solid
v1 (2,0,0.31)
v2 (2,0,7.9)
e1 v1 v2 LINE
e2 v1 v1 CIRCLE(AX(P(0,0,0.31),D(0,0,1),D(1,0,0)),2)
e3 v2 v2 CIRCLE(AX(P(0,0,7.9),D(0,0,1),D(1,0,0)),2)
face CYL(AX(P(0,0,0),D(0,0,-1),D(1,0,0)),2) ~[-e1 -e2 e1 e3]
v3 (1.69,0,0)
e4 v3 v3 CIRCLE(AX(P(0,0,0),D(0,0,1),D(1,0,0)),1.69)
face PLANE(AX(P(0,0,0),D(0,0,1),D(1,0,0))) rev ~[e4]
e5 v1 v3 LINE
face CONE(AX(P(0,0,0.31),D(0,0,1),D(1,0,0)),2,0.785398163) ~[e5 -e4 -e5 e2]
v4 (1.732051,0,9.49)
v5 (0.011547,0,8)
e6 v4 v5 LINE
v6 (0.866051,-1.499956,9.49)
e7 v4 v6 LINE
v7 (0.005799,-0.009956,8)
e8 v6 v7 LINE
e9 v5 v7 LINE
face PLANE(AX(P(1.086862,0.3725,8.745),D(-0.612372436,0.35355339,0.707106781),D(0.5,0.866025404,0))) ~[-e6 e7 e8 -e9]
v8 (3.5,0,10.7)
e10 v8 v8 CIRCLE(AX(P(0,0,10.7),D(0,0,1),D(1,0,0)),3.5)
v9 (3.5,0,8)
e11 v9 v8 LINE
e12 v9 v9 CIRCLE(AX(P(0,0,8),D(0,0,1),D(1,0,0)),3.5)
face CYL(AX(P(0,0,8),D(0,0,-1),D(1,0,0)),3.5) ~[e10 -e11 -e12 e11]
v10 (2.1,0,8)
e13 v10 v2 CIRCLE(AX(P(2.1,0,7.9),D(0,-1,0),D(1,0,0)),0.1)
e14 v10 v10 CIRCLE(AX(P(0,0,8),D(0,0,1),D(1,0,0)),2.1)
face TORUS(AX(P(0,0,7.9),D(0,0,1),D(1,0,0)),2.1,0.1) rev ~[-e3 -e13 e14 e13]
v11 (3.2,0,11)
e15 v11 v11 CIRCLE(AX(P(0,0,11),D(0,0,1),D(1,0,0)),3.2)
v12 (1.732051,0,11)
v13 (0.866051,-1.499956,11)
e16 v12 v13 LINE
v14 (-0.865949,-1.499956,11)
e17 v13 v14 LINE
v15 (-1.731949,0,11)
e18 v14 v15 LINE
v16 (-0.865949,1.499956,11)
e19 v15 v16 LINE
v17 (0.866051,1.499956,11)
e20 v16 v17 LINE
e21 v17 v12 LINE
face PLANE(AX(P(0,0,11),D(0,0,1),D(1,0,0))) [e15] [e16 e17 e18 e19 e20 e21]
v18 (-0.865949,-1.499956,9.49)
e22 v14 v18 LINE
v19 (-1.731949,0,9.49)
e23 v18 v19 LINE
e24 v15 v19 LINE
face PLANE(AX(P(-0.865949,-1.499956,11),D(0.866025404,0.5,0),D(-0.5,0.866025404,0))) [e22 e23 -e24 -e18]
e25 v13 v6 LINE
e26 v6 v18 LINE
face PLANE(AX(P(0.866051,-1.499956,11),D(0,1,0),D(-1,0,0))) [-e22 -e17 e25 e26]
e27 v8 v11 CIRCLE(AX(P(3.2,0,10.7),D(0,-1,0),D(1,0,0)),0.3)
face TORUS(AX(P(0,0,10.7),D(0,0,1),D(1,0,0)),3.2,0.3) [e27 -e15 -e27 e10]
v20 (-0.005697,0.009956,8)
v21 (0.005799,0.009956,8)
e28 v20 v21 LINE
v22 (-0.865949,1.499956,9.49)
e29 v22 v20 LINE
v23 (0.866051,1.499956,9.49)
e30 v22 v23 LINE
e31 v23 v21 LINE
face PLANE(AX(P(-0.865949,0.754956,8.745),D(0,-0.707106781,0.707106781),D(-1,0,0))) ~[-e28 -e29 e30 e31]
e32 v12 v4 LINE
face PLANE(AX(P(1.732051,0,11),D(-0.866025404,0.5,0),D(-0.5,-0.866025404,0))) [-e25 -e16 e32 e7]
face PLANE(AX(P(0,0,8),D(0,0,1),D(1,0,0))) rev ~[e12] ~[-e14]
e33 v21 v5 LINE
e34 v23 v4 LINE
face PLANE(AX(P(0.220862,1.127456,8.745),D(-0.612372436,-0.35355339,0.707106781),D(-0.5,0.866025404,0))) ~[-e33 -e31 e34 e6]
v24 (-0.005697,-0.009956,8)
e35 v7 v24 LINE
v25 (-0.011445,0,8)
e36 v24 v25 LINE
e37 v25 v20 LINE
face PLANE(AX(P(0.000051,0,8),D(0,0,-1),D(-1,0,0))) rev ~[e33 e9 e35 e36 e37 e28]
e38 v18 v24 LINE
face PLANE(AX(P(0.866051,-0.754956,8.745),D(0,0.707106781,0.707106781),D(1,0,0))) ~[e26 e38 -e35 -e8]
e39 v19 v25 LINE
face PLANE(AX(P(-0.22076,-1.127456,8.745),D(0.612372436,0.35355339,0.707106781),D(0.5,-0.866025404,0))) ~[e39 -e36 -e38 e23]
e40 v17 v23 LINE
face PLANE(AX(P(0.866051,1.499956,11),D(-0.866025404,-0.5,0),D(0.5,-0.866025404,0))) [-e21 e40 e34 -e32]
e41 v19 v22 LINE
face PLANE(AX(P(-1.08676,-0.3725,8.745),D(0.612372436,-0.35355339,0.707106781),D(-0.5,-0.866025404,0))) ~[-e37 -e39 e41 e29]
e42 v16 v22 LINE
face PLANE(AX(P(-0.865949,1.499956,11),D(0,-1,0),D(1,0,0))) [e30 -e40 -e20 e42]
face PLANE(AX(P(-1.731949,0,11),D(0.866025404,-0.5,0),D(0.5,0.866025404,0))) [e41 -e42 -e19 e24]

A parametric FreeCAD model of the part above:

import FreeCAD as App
import Part
import Sketcher
Q = App.Units.Quantity


def edges_at(feature, points):
    """Names of the edges that pass closest to the given points."""
    edges = feature.Shape.Edges
    near = lambda p: min(range(len(edges)), key=lambda i: edges[i].distToShape(Part.Vertex(*p))[0])
    return sorted({f"Edge{near(p) + 1}" for p in points})


def add_polygon(sketch, points):
    """Adds a closed chain of lines whose ends are joined by coincident constraints."""
    first, n = sketch.GeometryCount, len(points)
    for a, b in zip(points, points[1:] + points[:1]):
        sketch.addGeometry(Part.LineSegment(App.Vector(*a, 0), App.Vector(*b, 0)), False)
    for i in range(n):
        sketch.addConstraint(Sketcher.Constraint("Coincident", first + i, 2, first + (i + 1) % n, 1))

doc = App.newDocument("Part")
body = doc.addObject("PartDesign::Body", "Body")

sketch1 = doc.addObject("Sketcher::SketchObject", "Sketch")
body.addObject(sketch1)
sketch1.AttachmentSupport = (doc.XY_Plane, [""])
sketch1.MapMode = "FlatFace"
sketch1.addGeometry(Part.Circle(App.Vector(0, 0, 0), App.Vector(0, 0, 1), 2), False)
sketch1.addConstraint([
    Sketcher.Constraint("Coincident", 0, 3, -1, 1),
    Sketcher.Constraint("Diameter", 0, 4.0),
])
pad1 = doc.addObject("PartDesign::Pad", "Pad")
body.addObject(pad1)
pad1.Profile = sketch1
pad1.Length = 8

sketch2 = doc.addObject("Sketcher::SketchObject", "Sketch001")
body.addObject(sketch2)
sketch2.AttachmentSupport = (doc.XY_Plane, [""])
sketch2.MapMode = "FlatFace"
sketch2.AttachmentOffset = App.Placement(App.Vector(0, 0, 8), App.Rotation())
sketch2.addGeometry(Part.Circle(App.Vector(0, 0, 0), App.Vector(0, 0, 1), 3.5), False)
sketch2.addConstraint([
    Sketcher.Constraint("Coincident", 0, 3, -1, 1),
    Sketcher.Constraint("Diameter", 0, 7.0),
])
pad2 = doc.addObject("PartDesign::Pad", "Pad001")
body.addObject(pad2)
pad2.Profile = sketch2
pad2.Length = 3
doc.recompute()

fillet = doc.addObject("PartDesign::Fillet", "Fillet")
body.addObject(fillet)
fillet.Base = (pad2, edges_at(pad2, [(-2, 0, 8)]))
fillet.Radius = 0.1
doc.recompute()

fillet2 = doc.addObject("PartDesign::Fillet", "Fillet001")
body.addObject(fillet2)
fillet2.Base = (fillet, edges_at(fillet, [(-3.5, 0, 11)]))
fillet2.Radius = 0.3
doc.recompute()

chamfer = doc.addObject("PartDesign::Chamfer", "Chamfer")
body.addObject(chamfer)
chamfer.Base = (fillet2, edges_at(fillet2, [(-2, 0, 0)]))
chamfer.Size = 0.31

sketch3 = doc.addObject("Sketcher::SketchObject", "Sketch002")
body.addObject(sketch3)
sketch3.AttachmentSupport = (doc.XY_Plane, [""])
sketch3.MapMode = "FlatFace"
sketch3.AttachmentOffset = App.Placement(App.Vector(0, 0, 11), App.Rotation())
add_polygon(sketch3, [(0.9, 1.5), (-0.9, 1.5), (-1.7, 0), (-0.9, -1.5), (0.9, -1.5), (1.7, 0)])
sketch3.addConstraint([
    Sketcher.Constraint("Horizontal", 0),
    Sketcher.Constraint("Horizontal", 3),
    Sketcher.Constraint("Symmetric", 0, 2, 2, 2, -1),
    Sketcher.Constraint("PointOnObject", 1, 2, -1),
    Sketcher.Constraint("PointOnObject", 4, 2, -1),
    Sketcher.Constraint("Parallel", 1, 4),
    Sketcher.Constraint("Parallel", 2, 5),
    Sketcher.Constraint("Angle", 1, Q("-120 deg")),
    Sketcher.Constraint("DistanceX", 0, 2, 0, 1, 1.732),
    Sketcher.Constraint("Distance", 1, 1.732),
    Sketcher.Constraint("DistanceX", 0, 2, -1, 1, 0.865949),
])
pocket1 = doc.addObject("PartDesign::Pocket", "Pocket")
body.addObject(pocket1)
pocket1.Profile = sketch3
pocket1.Length = 3
doc.recompute()

chamfer2 = doc.addObject("PartDesign::Chamfer", "Chamfer001")
body.addObject(chamfer2)
chamfer2.Base = (pocket1, edges_at(pocket1, [
    (1.299, -0.75, 8),
    (0, -1.5, 8),
    (-1.299, -0.75, 8),
    (-1.299, 0.75, 8),
    (0, 1.5, 8),
    (1.299, 0.75, 8),
]))
chamfer2.Size = 1.49

doc.recompute()
